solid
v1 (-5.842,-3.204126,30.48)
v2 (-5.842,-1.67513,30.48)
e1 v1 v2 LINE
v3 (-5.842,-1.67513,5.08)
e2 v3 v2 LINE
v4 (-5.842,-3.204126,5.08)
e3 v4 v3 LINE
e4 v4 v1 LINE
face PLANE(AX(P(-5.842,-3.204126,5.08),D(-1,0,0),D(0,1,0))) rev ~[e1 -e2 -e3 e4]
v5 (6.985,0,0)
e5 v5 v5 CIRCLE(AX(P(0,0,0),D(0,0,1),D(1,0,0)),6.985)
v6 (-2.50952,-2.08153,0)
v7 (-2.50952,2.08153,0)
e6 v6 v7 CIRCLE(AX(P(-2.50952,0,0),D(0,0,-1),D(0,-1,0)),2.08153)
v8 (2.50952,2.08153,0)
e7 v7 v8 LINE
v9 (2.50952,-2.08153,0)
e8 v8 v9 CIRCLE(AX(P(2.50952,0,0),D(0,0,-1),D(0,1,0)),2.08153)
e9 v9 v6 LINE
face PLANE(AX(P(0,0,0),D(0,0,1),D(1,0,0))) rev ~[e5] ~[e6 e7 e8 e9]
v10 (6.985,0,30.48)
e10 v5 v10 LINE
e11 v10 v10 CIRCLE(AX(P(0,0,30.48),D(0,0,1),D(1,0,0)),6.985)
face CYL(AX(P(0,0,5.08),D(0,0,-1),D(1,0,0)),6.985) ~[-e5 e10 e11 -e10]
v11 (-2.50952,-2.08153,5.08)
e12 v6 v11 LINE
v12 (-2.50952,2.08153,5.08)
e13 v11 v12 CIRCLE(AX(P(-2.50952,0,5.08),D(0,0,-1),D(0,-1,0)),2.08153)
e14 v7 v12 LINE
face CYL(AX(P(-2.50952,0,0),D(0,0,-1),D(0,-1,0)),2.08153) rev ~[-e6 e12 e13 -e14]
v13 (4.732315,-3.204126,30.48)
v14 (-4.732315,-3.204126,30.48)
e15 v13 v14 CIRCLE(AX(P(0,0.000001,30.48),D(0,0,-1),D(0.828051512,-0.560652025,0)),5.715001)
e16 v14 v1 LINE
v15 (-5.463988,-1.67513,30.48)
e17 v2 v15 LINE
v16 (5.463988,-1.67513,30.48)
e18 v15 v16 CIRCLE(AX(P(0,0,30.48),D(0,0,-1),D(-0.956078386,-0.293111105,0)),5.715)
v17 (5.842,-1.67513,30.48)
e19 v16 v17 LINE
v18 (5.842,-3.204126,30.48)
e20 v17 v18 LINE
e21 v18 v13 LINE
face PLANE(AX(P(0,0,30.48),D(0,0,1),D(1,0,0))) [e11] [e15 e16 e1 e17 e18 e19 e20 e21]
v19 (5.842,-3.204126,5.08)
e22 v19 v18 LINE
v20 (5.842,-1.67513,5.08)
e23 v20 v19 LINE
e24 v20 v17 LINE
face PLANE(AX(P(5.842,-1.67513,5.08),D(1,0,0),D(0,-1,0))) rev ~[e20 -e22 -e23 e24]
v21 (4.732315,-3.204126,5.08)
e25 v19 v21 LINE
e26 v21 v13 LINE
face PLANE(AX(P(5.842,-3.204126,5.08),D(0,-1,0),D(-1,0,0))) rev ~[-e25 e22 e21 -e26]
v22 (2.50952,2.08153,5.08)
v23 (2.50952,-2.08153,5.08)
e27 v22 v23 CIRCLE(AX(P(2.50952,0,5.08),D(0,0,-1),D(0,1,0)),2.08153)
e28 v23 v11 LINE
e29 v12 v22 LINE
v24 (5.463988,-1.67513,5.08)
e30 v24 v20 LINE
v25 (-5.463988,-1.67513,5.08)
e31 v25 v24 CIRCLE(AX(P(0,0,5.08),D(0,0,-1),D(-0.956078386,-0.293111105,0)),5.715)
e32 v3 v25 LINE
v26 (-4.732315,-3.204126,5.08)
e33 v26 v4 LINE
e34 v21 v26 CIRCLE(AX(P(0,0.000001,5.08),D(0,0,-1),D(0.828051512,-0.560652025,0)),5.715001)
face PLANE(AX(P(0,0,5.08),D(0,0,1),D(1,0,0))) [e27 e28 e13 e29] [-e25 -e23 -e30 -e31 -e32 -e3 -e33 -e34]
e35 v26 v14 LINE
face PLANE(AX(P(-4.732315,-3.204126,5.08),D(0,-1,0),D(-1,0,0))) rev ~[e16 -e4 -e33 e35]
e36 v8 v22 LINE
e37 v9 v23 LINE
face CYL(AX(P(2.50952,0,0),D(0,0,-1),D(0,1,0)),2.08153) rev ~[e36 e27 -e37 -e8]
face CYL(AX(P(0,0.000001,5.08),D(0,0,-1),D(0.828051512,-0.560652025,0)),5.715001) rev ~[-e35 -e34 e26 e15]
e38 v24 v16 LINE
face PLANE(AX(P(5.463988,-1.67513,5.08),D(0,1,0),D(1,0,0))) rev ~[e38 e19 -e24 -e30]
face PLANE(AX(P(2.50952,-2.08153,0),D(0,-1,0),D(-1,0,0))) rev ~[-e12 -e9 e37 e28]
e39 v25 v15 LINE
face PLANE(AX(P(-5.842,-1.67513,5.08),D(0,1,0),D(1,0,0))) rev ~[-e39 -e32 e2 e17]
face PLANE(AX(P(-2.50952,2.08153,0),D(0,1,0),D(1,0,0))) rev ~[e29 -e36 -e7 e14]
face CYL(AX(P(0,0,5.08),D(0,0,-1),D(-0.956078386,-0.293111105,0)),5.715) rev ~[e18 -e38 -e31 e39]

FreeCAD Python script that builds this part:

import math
import FreeCAD as App
import Part
import Sketcher

V = App.Vector
Q = App.Units.Quantity

doc = App.newDocument("Part")
body = doc.addObject("PartDesign::Body", "Body")

# Sketch on XY plane
sketch1 = doc.addObject("Sketcher::SketchObject", "Sketch")
body.addObject(sketch1)
sketch1.AttachmentSupport = (doc.XY_Plane, [""])
sketch1.MapMode = "FlatFace"
sketch1.addGeometry(Part.Circle(V(0, 0, 0), V(0, 0, 1), 7), False)
sketch1.addGeometry(Part.LineSegment(V(2.5, -2.1, 0), V(-2.5, -2.1, 0)), False)
sketch1.addGeometry(Part.ArcOfCircle(Part.Circle(V(-2.5, 0, 0), V(0, 0, 1), 2.1), math.radians(90), math.radians(270)), False)
sketch1.addGeometry(Part.LineSegment(V(-2.5, 2.1, 0), V(2.5, 2.1, 0)), False)
sketch1.addGeometry(Part.ArcOfCircle(Part.Circle(V(2.5, 0, 0), V(0, 0, 1), 2.1), math.radians(-90), math.radians(90)), False)
sketch1.addConstraint(Sketcher.Constraint("Tangent", 1, 2, 2, 2))
sketch1.addConstraint(Sketcher.Constraint("Tangent", 2, 1, 3, 1))
sketch1.addConstraint(Sketcher.Constraint("Tangent", 3, 2, 4, 2))
sketch1.addConstraint(Sketcher.Constraint("Tangent", 4, 1, 1, 1))
sketch1.addConstraint(Sketcher.Constraint("Horizontal", 1))
sketch1.addConstraint(Sketcher.Constraint("Horizontal", 3))
sketch1.addConstraint(Sketcher.Constraint("Coincident", 0, 3, -1, 1))
sketch1.addConstraint(Sketcher.Constraint("Symmetric", 2, 3, 4, 3, -1, 1))
sketch1.addConstraint(Sketcher.Constraint("Diameter", 0, Q("0.55 in")))
sketch1.addConstraint(Sketcher.Constraint("DistanceX", 1, 2, 1, 1, Q("0.1976 in")))
sketch1.addConstraint(Sketcher.Constraint("Radius", 2, Q("2.08153 mm")))
pad1 = doc.addObject("PartDesign::Pad", "Pad")
body.addObject(pad1)
pad1.Profile = sketch1
pad1.Length = Q("0.2 in")

# Sketch on XY plane
sketch2 = doc.addObject("Sketcher::SketchObject", "Sketch001")
body.addObject(sketch2)
sketch2.AttachmentSupport = (doc.XY_Plane, [""])
sketch2.MapMode = "FlatFace"
sketch2.AttachmentOffset = App.Placement(V(0, 0, 0.2 * 25.4), App.Rotation())
sketch2.addGeometry(Part.Circle(V(0, 0, 0), V(0, 0, 1), 6.99), False)
sketch2.addGeometry(Part.LineSegment(V(-5.84, -1.68, 0), V(-5.46, -1.68, 0)), False)
sketch2.addGeometry(Part.ArcOfCircle(Part.Circle(V(0, 0, 0), V(0, 0, 1), 5.72), math.radians(-17), math.radians(197)), False)
sketch2.addGeometry(Part.LineSegment(V(5.46, -1.68, 0), V(5.84, -1.68, 0)), False)
sketch2.addGeometry(Part.LineSegment(V(5.84, -1.68, 0), V(5.84, -3.2, 0)), False)
sketch2.addGeometry(Part.LineSegment(V(5.84, -3.2, 0), V(4.73, -3.2, 0)), False)
sketch2.addGeometry(Part.ArcOfCircle(Part.Circle(V(0, 0, 0), V(0, 0, 1), 5.72), math.radians(-146), math.radians(-34)), False)
sketch2.addGeometry(Part.LineSegment(V(-4.73, -3.2, 0), V(-5.84, -3.2, 0)), False)
sketch2.addGeometry(Part.LineSegment(V(-5.84, -3.2, 0), V(-5.84, -1.68, 0)), False)
sketch2.addConstraint(Sketcher.Constraint("Coincident", 1, 2, 2, 2))
sketch2.addConstraint(Sketcher.Constraint("Coincident", 2, 1, 3, 1))
sketch2.addConstraint(Sketcher.Constraint("Coincident", 3, 2, 4, 1))
sketch2.addConstraint(Sketcher.Constraint("Coincident", 4, 2, 5, 1))
sketch2.addConstraint(Sketcher.Constraint("Coincident", 5, 2, 6, 2))
sketch2.addConstraint(Sketcher.Constraint("Coincident", 6, 1, 7, 1))
sketch2.addConstraint(Sketcher.Constraint("Coincident", 7, 2, 8, 1))
sketch2.addConstraint(Sketcher.Constraint("Coincident", 8, 2, 1, 1))
sketch2.addConstraint(Sketcher.Constraint("Horizontal", 1))
sketch2.addConstraint(Sketcher.Constraint("Horizontal", 3))
sketch2.addConstraint(Sketcher.Constraint("Vertical", 4))
sketch2.addConstraint(Sketcher.Constraint("Horizontal", 5))
sketch2.addConstraint(Sketcher.Constraint("Horizontal", 7))
sketch2.addConstraint(Sketcher.Constraint("Vertical", 8))
sketch2.addConstraint(Sketcher.Constraint("Coincident", 0, 3, -1, 1))
sketch2.addConstraint(Sketcher.Constraint("Coincident", 2, 3, -1, 1))
sketch2.addConstraint(Sketcher.Constraint("Coincident", 6, 3, -1, 1))
sketch2.addConstraint(Sketcher.Constraint("Equal", 2, 6))
sketch2.addConstraint(Sketcher.Constraint("Symmetric", 4, 2, 7, 2, -2))
sketch2.addConstraint(Sketcher.Constraint("Horizontal", 1, 2, 2, 1))
sketch2.addConstraint(Sketcher.Constraint("Diameter", 0, Q("0.55 in")))
sketch2.addConstraint(Sketcher.Constraint("Radius", 2, Q("0.225 in")))
sketch2.addConstraint(Sketcher.Constraint("DistanceX", -1, 1, 3, 2, Q("0.23 in")))
sketch2.addConstraint(Sketcher.Constraint("DistanceX", 1, 1, 1, 2, Q("0.378012 mm")))
sketch2.addConstraint(Sketcher.Constraint("DistanceX", 5, 2, 5, 1, Q("1.109685 mm")))
pad2 = doc.addObject("PartDesign::Pad", "Pad001")
body.addObject(pad2)
pad2.Profile = sketch2
pad2.Length = Q("1 in")

doc.recompute()
